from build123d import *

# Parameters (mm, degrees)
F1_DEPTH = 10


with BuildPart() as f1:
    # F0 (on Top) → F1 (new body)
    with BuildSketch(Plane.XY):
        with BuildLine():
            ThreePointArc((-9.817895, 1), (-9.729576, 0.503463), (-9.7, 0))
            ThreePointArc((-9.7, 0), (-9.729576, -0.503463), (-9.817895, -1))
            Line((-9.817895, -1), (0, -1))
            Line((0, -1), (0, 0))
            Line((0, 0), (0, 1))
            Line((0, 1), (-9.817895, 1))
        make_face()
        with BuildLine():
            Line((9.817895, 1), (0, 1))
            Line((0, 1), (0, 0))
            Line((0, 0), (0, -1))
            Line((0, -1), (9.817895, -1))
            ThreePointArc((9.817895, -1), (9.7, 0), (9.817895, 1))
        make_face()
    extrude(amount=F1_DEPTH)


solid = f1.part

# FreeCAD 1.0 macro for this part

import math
import FreeCAD as App
import Part
import Sketcher
from FreeCAD import Vector
Q = App.Units.Quantity

doc = App.newDocument("Part")
body = doc.addObject("PartDesign::Body", "Body")

# Sketch on XY plane
sketch1 = body.newObject("Sketcher::SketchObject", "Sketch")
sketch1.AttachmentSupport = (doc.getObject("XY_Plane"), [""])
sketch1.MapMode = "FlatFace"
sketch1.addGeometry(Part.ArcOfCircle(Part.Circle(Vector(-14, 0, 0), Vector(0, 0, 1), 4.3), math.radians(0), math.radians(13.45)), False)
sketch1.addGeometry(Part.ArcOfCircle(Part.Circle(Vector(-14, 0, 0), Vector(0, 0, 1), 4.3), math.radians(-13.45), math.radians(0)), False)
sketch1.addGeometry(Part.LineSegment(Vector(-9.8, -1, 0), Vector(9.8, -1, 0)), False)
sketch1.addGeometry(Part.ArcOfCircle(Part.Circle(Vector(14, 0, 0), Vector(0, 0, 1), 4.3), math.radians(167), math.radians(193)), False)
sketch1.addGeometry(Part.LineSegment(Vector(9.8, 1, 0), Vector(-9.8, 1, 0)), False)
sketch1.addConstraint(Sketcher.Constraint("Coincident", 0, 1, 1, 2))
sketch1.addConstraint(Sketcher.Constraint("Coincident", 1, 1, 2, 1))
sketch1.addConstraint(Sketcher.Constraint("Coincident", 2, 2, 3, 2))
sketch1.addConstraint(Sketcher.Constraint("Coincident", 3, 1, 4, 1))
sketch1.addConstraint(Sketcher.Constraint("Coincident", 4, 2, 0, 2))
sketch1.addConstraint(Sketcher.Constraint("Horizontal", 2))
sketch1.addConstraint(Sketcher.Constraint("Horizontal", 4))
sketch1.addConstraint(Sketcher.Constraint("Equal", 0, 1))
sketch1.addConstraint(Sketcher.Constraint("Symmetric", 1, 1, 3, 1, -1, 1))
sketch1.addConstraint(Sketcher.Constraint("PointOnObject", 3, 3, -1))
sketch1.addConstraint(Sketcher.Constraint("PointOnObject", 0, 1, -1))
sketch1.addConstraint(Sketcher.Constraint("Vertical", 1, 1, 4, 2))
sketch1.addConstraint(Sketcher.Constraint("DistanceY", 1, 1, -1, 1, Q("1 mm")))
sketch1.addConstraint(Sketcher.Constraint("DistanceX", 0, 1, -1, 1, Q("9.7 mm")))
sketch1.addConstraint(Sketcher.Constraint("Radius", 3, Q("4.300009 mm")))
sketch1.addConstraint(Sketcher.Constraint("Radius", 0, Q("4.300084 mm")))
sketch1.addConstraint(Sketcher.Constraint("DistanceX", 2, 1, 2, 2, Q("19.63579 mm")))
pad1 = body.newObject("PartDesign::Pad", "Pad")
pad1.Profile = sketch1
pad1.Length = 10

doc.recompute()
